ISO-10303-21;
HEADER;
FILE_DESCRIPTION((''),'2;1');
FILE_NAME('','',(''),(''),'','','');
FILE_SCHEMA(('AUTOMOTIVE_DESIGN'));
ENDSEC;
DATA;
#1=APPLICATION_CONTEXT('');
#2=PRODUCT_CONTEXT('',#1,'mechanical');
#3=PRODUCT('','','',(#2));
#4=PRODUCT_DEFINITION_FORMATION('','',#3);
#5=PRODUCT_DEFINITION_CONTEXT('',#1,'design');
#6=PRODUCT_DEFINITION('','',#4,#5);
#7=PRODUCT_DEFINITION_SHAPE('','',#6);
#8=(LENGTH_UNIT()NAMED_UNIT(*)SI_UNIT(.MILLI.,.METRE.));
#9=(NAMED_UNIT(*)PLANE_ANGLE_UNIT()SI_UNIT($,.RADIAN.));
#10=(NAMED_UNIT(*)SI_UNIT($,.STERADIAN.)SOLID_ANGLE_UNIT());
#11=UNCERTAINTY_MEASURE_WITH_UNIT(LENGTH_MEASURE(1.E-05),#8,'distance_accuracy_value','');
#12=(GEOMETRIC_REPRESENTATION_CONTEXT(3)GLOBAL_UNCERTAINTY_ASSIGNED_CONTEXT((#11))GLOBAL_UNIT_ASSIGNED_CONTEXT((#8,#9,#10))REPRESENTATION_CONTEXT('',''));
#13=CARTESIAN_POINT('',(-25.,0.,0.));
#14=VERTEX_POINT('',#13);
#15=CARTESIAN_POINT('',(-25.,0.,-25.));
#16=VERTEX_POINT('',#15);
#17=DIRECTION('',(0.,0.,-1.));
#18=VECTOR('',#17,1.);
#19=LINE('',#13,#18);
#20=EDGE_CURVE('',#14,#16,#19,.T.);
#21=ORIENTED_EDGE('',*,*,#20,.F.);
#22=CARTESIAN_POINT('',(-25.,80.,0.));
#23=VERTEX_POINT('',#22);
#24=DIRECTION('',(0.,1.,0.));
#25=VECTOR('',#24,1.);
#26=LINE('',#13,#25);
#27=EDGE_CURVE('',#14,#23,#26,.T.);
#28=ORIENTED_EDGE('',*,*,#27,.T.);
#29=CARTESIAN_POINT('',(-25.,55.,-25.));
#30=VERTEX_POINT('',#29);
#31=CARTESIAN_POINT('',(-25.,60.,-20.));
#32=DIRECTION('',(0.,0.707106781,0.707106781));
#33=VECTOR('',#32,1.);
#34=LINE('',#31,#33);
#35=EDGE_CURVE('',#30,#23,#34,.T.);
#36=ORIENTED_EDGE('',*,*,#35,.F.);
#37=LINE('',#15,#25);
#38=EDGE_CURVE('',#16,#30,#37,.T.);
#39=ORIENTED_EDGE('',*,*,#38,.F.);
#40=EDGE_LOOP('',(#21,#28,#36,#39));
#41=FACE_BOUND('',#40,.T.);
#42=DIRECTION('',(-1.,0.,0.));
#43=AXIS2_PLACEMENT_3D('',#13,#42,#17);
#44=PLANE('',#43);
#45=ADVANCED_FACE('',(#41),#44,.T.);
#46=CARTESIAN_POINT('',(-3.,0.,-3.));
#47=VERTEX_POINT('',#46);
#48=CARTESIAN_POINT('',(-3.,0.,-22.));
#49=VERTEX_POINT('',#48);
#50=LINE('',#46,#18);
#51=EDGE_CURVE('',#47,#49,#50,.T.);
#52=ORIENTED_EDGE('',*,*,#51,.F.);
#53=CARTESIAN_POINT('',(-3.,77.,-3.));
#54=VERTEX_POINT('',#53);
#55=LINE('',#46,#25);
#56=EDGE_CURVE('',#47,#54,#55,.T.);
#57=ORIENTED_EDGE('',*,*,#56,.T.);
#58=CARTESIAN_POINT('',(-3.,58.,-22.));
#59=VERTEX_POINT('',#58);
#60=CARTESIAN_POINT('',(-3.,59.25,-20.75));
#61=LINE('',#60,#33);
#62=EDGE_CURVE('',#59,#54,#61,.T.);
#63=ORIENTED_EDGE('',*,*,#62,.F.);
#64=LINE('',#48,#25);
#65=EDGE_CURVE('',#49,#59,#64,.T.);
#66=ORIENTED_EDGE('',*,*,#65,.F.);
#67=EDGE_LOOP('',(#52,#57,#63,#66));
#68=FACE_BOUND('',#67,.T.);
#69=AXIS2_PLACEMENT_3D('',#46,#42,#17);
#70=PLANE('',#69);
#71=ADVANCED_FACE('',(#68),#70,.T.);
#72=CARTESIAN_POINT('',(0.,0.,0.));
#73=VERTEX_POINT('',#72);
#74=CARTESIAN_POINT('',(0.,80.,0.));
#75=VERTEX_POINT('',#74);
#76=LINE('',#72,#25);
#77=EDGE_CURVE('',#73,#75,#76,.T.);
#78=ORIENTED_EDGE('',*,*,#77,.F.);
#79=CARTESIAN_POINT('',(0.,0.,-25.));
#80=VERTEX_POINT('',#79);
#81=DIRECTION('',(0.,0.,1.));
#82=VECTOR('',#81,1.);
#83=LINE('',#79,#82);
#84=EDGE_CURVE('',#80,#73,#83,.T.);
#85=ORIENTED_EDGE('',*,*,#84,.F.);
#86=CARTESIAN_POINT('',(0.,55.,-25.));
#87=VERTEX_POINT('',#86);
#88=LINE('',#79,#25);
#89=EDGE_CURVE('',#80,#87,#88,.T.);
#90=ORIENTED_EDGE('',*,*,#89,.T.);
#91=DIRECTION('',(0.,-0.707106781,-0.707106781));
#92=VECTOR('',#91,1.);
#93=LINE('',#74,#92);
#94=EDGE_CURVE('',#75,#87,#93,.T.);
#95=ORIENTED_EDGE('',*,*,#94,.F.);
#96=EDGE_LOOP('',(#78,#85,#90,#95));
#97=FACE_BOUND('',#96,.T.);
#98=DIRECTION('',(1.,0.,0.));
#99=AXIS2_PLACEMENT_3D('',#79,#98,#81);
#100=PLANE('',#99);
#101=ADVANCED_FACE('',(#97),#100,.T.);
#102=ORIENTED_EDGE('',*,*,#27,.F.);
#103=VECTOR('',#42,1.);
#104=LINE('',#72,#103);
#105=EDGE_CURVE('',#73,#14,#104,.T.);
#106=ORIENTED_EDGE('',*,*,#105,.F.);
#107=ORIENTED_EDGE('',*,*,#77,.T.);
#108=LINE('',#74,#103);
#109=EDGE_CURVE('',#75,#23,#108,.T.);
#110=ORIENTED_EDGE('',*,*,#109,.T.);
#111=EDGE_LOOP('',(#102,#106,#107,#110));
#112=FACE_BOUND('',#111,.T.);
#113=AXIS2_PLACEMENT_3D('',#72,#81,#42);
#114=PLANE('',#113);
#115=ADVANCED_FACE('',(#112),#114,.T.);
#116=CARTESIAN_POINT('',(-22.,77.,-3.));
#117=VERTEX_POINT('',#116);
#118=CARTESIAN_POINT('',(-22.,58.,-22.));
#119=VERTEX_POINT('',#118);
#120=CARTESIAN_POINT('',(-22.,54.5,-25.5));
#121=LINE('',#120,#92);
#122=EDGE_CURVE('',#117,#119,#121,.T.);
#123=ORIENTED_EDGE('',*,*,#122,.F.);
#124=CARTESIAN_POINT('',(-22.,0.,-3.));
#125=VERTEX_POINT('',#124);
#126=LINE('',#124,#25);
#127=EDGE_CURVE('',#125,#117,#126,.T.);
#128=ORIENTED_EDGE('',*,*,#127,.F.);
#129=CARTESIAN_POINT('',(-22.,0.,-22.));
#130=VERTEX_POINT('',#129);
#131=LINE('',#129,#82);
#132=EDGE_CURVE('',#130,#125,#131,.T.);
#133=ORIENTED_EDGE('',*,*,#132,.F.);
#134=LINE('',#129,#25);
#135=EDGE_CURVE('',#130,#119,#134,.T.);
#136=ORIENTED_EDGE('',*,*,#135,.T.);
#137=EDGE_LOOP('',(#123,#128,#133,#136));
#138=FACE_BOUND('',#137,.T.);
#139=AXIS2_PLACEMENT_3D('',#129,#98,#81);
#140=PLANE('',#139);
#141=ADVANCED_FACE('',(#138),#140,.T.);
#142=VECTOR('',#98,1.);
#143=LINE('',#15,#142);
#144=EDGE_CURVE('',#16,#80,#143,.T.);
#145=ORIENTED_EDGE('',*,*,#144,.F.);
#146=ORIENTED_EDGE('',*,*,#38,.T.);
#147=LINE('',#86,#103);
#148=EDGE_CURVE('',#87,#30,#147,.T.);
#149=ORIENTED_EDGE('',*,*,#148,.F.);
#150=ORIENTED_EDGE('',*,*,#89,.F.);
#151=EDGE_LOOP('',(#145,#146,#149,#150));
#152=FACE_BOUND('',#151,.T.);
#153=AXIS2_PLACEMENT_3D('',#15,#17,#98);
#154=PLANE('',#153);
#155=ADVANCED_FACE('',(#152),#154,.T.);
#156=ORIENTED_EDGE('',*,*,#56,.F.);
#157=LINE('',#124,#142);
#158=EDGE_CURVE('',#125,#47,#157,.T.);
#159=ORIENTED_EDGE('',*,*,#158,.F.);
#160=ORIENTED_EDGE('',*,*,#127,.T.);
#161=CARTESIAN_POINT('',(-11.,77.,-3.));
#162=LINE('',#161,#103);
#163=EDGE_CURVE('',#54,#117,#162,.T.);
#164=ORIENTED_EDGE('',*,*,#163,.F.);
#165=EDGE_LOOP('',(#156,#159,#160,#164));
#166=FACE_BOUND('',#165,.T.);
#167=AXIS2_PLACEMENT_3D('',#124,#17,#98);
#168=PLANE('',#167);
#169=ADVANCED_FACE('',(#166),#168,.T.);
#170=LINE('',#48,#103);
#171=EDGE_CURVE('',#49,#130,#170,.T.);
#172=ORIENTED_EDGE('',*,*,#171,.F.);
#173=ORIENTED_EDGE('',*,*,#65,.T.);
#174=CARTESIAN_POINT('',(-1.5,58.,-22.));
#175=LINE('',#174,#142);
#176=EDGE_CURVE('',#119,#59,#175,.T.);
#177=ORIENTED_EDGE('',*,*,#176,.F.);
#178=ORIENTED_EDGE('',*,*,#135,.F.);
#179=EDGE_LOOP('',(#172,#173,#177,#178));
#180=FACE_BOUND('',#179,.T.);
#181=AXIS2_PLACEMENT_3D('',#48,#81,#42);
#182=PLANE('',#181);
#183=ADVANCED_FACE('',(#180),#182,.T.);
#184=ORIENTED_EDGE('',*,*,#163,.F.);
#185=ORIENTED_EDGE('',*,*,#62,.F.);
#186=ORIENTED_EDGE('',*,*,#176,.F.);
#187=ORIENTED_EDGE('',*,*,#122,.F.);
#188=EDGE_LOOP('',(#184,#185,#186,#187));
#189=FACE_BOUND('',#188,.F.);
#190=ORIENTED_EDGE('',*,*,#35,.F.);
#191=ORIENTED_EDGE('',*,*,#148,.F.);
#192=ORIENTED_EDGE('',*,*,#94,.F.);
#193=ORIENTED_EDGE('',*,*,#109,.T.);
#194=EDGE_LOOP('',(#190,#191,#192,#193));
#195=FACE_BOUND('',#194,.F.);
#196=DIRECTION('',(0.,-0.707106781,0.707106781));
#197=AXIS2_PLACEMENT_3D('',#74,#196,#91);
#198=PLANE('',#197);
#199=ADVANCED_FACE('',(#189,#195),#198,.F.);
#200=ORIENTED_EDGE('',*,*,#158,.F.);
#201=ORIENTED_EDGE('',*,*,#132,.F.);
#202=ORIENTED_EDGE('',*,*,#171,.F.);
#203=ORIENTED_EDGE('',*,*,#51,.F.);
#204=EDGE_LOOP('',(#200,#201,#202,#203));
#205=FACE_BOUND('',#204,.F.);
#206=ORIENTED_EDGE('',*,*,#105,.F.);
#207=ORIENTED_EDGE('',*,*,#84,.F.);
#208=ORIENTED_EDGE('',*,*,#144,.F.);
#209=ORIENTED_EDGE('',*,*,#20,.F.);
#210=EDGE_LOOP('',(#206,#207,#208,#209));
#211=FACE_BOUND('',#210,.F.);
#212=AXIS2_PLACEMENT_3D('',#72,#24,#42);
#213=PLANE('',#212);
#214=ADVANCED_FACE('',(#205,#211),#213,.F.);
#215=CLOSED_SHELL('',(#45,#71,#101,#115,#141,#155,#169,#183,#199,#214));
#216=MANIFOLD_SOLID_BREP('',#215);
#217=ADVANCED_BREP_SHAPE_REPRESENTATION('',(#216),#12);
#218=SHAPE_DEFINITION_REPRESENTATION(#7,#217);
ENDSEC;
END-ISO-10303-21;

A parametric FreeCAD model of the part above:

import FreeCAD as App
import Part
import Sketcher

V = App.Vector


def add_polygon(sketch, points):
    """Adds a closed chain of lines whose ends are joined by coincident constraints."""
    first, n = sketch.GeometryCount, len(points)
    for a, b in zip(points, points[1:] + points[:1]):
        sketch.addGeometry(Part.LineSegment(App.Vector(*a, 0), App.Vector(*b, 0)), False)
    for i in range(n):
        sketch.addConstraint(Sketcher.Constraint("Coincident", first + i, 2, first + (i + 1) % n, 1))

doc = App.newDocument("Part")
params = doc.addObject("Spreadsheet::Sheet", "Params")
for row, (alias, value) in enumerate([
    ("sketch1_width", "25 mm"),
    ("pad1_length", "80 mm"),
    ("sketch2_width", "25 mm"),
    ("pocket1_length", "80 mm"),
], start=1):
    params.set(f"A{row}", alias)
    params.set(f"B{row}", "=" + value)
    params.setAlias(f"B{row}", alias)

body = doc.addObject("PartDesign::Body", "Body")

# Sketch on XZ plane
sketch1 = body.newObject("Sketcher::SketchObject", "Sketch")
sketch1.AttachmentSupport = (doc.getObject("XZ_Plane"), [""])
sketch1.MapMode = "FlatFace"
add_polygon(sketch1, [(-25, 0), (0, 0), (0, -25), (-25, -25)])  # lines 0-3
add_polygon(sketch1, [(-22, -3), (-22, -22), (-3, -22), (-3, -3)])  # lines 4-7
sketch1.addConstraint([
    Sketcher.Constraint("Horizontal", 0),
    Sketcher.Constraint("Vertical", 1),
    Sketcher.Constraint("Horizontal", 2),
    Sketcher.Constraint("Vertical", 3),
    Sketcher.Constraint("Vertical", 4),
    Sketcher.Constraint("Horizontal", 5),
    Sketcher.Constraint("Vertical", 6),
    Sketcher.Constraint("Horizontal", 7),
    Sketcher.Constraint("Coincident", 0, 2, -1, 1),
    Sketcher.Constraint("Equal", 2, 1),
    Sketcher.Constraint("Equal", 7, 4),
    Sketcher.Constraint("DistanceX", 0, 1, 0, 2, 25.0),
    Sketcher.Constraint("DistanceX", 5, 2, -1, 1, 3.0),
    Sketcher.Constraint("DistanceY", 6, 2, -1, 1, 3.0),
    Sketcher.Constraint("DistanceX", 2, 2, 4, 2, 3.0),
])
sketch1.setExpression("Constraints[19]", "Params.sketch1_width")
pad1 = body.newObject("PartDesign::Pad", "Pad")
pad1.Profile = sketch1
pad1.setExpression("Length", "Params.pad1_length")
pad1.Reversed = True

# Sketch on YZ plane
sketch2 = body.newObject("Sketcher::SketchObject", "Sketch001")
sketch2.AttachmentSupport = (doc.getObject("YZ_Plane"), [""])
sketch2.MapMode = "FlatFace"
add_polygon(sketch2, [(80, -25), (80, 0), (55, -25)])  # lines 0-2
sketch2.addConstraint([
    Sketcher.Constraint("Vertical", 0),
    Sketcher.Constraint("Horizontal", 2),
    Sketcher.Constraint("PointOnObject", 0, 2, -1),
    Sketcher.Constraint("Equal", 2, 0),
    Sketcher.Constraint("DistanceX", 2, 1, 2, 2, 25.0),
    Sketcher.Constraint("DistanceX", -1, 1, 0, 2, 80.0),
])
sketch2.setExpression("Constraints[7]", "Params.sketch2_width")
pocket1 = body.newObject("PartDesign::Pocket", "Pocket")
pocket1.Profile = sketch2
pocket1.setExpression("Length", "Params.pocket1_length")

doc.recompute()
